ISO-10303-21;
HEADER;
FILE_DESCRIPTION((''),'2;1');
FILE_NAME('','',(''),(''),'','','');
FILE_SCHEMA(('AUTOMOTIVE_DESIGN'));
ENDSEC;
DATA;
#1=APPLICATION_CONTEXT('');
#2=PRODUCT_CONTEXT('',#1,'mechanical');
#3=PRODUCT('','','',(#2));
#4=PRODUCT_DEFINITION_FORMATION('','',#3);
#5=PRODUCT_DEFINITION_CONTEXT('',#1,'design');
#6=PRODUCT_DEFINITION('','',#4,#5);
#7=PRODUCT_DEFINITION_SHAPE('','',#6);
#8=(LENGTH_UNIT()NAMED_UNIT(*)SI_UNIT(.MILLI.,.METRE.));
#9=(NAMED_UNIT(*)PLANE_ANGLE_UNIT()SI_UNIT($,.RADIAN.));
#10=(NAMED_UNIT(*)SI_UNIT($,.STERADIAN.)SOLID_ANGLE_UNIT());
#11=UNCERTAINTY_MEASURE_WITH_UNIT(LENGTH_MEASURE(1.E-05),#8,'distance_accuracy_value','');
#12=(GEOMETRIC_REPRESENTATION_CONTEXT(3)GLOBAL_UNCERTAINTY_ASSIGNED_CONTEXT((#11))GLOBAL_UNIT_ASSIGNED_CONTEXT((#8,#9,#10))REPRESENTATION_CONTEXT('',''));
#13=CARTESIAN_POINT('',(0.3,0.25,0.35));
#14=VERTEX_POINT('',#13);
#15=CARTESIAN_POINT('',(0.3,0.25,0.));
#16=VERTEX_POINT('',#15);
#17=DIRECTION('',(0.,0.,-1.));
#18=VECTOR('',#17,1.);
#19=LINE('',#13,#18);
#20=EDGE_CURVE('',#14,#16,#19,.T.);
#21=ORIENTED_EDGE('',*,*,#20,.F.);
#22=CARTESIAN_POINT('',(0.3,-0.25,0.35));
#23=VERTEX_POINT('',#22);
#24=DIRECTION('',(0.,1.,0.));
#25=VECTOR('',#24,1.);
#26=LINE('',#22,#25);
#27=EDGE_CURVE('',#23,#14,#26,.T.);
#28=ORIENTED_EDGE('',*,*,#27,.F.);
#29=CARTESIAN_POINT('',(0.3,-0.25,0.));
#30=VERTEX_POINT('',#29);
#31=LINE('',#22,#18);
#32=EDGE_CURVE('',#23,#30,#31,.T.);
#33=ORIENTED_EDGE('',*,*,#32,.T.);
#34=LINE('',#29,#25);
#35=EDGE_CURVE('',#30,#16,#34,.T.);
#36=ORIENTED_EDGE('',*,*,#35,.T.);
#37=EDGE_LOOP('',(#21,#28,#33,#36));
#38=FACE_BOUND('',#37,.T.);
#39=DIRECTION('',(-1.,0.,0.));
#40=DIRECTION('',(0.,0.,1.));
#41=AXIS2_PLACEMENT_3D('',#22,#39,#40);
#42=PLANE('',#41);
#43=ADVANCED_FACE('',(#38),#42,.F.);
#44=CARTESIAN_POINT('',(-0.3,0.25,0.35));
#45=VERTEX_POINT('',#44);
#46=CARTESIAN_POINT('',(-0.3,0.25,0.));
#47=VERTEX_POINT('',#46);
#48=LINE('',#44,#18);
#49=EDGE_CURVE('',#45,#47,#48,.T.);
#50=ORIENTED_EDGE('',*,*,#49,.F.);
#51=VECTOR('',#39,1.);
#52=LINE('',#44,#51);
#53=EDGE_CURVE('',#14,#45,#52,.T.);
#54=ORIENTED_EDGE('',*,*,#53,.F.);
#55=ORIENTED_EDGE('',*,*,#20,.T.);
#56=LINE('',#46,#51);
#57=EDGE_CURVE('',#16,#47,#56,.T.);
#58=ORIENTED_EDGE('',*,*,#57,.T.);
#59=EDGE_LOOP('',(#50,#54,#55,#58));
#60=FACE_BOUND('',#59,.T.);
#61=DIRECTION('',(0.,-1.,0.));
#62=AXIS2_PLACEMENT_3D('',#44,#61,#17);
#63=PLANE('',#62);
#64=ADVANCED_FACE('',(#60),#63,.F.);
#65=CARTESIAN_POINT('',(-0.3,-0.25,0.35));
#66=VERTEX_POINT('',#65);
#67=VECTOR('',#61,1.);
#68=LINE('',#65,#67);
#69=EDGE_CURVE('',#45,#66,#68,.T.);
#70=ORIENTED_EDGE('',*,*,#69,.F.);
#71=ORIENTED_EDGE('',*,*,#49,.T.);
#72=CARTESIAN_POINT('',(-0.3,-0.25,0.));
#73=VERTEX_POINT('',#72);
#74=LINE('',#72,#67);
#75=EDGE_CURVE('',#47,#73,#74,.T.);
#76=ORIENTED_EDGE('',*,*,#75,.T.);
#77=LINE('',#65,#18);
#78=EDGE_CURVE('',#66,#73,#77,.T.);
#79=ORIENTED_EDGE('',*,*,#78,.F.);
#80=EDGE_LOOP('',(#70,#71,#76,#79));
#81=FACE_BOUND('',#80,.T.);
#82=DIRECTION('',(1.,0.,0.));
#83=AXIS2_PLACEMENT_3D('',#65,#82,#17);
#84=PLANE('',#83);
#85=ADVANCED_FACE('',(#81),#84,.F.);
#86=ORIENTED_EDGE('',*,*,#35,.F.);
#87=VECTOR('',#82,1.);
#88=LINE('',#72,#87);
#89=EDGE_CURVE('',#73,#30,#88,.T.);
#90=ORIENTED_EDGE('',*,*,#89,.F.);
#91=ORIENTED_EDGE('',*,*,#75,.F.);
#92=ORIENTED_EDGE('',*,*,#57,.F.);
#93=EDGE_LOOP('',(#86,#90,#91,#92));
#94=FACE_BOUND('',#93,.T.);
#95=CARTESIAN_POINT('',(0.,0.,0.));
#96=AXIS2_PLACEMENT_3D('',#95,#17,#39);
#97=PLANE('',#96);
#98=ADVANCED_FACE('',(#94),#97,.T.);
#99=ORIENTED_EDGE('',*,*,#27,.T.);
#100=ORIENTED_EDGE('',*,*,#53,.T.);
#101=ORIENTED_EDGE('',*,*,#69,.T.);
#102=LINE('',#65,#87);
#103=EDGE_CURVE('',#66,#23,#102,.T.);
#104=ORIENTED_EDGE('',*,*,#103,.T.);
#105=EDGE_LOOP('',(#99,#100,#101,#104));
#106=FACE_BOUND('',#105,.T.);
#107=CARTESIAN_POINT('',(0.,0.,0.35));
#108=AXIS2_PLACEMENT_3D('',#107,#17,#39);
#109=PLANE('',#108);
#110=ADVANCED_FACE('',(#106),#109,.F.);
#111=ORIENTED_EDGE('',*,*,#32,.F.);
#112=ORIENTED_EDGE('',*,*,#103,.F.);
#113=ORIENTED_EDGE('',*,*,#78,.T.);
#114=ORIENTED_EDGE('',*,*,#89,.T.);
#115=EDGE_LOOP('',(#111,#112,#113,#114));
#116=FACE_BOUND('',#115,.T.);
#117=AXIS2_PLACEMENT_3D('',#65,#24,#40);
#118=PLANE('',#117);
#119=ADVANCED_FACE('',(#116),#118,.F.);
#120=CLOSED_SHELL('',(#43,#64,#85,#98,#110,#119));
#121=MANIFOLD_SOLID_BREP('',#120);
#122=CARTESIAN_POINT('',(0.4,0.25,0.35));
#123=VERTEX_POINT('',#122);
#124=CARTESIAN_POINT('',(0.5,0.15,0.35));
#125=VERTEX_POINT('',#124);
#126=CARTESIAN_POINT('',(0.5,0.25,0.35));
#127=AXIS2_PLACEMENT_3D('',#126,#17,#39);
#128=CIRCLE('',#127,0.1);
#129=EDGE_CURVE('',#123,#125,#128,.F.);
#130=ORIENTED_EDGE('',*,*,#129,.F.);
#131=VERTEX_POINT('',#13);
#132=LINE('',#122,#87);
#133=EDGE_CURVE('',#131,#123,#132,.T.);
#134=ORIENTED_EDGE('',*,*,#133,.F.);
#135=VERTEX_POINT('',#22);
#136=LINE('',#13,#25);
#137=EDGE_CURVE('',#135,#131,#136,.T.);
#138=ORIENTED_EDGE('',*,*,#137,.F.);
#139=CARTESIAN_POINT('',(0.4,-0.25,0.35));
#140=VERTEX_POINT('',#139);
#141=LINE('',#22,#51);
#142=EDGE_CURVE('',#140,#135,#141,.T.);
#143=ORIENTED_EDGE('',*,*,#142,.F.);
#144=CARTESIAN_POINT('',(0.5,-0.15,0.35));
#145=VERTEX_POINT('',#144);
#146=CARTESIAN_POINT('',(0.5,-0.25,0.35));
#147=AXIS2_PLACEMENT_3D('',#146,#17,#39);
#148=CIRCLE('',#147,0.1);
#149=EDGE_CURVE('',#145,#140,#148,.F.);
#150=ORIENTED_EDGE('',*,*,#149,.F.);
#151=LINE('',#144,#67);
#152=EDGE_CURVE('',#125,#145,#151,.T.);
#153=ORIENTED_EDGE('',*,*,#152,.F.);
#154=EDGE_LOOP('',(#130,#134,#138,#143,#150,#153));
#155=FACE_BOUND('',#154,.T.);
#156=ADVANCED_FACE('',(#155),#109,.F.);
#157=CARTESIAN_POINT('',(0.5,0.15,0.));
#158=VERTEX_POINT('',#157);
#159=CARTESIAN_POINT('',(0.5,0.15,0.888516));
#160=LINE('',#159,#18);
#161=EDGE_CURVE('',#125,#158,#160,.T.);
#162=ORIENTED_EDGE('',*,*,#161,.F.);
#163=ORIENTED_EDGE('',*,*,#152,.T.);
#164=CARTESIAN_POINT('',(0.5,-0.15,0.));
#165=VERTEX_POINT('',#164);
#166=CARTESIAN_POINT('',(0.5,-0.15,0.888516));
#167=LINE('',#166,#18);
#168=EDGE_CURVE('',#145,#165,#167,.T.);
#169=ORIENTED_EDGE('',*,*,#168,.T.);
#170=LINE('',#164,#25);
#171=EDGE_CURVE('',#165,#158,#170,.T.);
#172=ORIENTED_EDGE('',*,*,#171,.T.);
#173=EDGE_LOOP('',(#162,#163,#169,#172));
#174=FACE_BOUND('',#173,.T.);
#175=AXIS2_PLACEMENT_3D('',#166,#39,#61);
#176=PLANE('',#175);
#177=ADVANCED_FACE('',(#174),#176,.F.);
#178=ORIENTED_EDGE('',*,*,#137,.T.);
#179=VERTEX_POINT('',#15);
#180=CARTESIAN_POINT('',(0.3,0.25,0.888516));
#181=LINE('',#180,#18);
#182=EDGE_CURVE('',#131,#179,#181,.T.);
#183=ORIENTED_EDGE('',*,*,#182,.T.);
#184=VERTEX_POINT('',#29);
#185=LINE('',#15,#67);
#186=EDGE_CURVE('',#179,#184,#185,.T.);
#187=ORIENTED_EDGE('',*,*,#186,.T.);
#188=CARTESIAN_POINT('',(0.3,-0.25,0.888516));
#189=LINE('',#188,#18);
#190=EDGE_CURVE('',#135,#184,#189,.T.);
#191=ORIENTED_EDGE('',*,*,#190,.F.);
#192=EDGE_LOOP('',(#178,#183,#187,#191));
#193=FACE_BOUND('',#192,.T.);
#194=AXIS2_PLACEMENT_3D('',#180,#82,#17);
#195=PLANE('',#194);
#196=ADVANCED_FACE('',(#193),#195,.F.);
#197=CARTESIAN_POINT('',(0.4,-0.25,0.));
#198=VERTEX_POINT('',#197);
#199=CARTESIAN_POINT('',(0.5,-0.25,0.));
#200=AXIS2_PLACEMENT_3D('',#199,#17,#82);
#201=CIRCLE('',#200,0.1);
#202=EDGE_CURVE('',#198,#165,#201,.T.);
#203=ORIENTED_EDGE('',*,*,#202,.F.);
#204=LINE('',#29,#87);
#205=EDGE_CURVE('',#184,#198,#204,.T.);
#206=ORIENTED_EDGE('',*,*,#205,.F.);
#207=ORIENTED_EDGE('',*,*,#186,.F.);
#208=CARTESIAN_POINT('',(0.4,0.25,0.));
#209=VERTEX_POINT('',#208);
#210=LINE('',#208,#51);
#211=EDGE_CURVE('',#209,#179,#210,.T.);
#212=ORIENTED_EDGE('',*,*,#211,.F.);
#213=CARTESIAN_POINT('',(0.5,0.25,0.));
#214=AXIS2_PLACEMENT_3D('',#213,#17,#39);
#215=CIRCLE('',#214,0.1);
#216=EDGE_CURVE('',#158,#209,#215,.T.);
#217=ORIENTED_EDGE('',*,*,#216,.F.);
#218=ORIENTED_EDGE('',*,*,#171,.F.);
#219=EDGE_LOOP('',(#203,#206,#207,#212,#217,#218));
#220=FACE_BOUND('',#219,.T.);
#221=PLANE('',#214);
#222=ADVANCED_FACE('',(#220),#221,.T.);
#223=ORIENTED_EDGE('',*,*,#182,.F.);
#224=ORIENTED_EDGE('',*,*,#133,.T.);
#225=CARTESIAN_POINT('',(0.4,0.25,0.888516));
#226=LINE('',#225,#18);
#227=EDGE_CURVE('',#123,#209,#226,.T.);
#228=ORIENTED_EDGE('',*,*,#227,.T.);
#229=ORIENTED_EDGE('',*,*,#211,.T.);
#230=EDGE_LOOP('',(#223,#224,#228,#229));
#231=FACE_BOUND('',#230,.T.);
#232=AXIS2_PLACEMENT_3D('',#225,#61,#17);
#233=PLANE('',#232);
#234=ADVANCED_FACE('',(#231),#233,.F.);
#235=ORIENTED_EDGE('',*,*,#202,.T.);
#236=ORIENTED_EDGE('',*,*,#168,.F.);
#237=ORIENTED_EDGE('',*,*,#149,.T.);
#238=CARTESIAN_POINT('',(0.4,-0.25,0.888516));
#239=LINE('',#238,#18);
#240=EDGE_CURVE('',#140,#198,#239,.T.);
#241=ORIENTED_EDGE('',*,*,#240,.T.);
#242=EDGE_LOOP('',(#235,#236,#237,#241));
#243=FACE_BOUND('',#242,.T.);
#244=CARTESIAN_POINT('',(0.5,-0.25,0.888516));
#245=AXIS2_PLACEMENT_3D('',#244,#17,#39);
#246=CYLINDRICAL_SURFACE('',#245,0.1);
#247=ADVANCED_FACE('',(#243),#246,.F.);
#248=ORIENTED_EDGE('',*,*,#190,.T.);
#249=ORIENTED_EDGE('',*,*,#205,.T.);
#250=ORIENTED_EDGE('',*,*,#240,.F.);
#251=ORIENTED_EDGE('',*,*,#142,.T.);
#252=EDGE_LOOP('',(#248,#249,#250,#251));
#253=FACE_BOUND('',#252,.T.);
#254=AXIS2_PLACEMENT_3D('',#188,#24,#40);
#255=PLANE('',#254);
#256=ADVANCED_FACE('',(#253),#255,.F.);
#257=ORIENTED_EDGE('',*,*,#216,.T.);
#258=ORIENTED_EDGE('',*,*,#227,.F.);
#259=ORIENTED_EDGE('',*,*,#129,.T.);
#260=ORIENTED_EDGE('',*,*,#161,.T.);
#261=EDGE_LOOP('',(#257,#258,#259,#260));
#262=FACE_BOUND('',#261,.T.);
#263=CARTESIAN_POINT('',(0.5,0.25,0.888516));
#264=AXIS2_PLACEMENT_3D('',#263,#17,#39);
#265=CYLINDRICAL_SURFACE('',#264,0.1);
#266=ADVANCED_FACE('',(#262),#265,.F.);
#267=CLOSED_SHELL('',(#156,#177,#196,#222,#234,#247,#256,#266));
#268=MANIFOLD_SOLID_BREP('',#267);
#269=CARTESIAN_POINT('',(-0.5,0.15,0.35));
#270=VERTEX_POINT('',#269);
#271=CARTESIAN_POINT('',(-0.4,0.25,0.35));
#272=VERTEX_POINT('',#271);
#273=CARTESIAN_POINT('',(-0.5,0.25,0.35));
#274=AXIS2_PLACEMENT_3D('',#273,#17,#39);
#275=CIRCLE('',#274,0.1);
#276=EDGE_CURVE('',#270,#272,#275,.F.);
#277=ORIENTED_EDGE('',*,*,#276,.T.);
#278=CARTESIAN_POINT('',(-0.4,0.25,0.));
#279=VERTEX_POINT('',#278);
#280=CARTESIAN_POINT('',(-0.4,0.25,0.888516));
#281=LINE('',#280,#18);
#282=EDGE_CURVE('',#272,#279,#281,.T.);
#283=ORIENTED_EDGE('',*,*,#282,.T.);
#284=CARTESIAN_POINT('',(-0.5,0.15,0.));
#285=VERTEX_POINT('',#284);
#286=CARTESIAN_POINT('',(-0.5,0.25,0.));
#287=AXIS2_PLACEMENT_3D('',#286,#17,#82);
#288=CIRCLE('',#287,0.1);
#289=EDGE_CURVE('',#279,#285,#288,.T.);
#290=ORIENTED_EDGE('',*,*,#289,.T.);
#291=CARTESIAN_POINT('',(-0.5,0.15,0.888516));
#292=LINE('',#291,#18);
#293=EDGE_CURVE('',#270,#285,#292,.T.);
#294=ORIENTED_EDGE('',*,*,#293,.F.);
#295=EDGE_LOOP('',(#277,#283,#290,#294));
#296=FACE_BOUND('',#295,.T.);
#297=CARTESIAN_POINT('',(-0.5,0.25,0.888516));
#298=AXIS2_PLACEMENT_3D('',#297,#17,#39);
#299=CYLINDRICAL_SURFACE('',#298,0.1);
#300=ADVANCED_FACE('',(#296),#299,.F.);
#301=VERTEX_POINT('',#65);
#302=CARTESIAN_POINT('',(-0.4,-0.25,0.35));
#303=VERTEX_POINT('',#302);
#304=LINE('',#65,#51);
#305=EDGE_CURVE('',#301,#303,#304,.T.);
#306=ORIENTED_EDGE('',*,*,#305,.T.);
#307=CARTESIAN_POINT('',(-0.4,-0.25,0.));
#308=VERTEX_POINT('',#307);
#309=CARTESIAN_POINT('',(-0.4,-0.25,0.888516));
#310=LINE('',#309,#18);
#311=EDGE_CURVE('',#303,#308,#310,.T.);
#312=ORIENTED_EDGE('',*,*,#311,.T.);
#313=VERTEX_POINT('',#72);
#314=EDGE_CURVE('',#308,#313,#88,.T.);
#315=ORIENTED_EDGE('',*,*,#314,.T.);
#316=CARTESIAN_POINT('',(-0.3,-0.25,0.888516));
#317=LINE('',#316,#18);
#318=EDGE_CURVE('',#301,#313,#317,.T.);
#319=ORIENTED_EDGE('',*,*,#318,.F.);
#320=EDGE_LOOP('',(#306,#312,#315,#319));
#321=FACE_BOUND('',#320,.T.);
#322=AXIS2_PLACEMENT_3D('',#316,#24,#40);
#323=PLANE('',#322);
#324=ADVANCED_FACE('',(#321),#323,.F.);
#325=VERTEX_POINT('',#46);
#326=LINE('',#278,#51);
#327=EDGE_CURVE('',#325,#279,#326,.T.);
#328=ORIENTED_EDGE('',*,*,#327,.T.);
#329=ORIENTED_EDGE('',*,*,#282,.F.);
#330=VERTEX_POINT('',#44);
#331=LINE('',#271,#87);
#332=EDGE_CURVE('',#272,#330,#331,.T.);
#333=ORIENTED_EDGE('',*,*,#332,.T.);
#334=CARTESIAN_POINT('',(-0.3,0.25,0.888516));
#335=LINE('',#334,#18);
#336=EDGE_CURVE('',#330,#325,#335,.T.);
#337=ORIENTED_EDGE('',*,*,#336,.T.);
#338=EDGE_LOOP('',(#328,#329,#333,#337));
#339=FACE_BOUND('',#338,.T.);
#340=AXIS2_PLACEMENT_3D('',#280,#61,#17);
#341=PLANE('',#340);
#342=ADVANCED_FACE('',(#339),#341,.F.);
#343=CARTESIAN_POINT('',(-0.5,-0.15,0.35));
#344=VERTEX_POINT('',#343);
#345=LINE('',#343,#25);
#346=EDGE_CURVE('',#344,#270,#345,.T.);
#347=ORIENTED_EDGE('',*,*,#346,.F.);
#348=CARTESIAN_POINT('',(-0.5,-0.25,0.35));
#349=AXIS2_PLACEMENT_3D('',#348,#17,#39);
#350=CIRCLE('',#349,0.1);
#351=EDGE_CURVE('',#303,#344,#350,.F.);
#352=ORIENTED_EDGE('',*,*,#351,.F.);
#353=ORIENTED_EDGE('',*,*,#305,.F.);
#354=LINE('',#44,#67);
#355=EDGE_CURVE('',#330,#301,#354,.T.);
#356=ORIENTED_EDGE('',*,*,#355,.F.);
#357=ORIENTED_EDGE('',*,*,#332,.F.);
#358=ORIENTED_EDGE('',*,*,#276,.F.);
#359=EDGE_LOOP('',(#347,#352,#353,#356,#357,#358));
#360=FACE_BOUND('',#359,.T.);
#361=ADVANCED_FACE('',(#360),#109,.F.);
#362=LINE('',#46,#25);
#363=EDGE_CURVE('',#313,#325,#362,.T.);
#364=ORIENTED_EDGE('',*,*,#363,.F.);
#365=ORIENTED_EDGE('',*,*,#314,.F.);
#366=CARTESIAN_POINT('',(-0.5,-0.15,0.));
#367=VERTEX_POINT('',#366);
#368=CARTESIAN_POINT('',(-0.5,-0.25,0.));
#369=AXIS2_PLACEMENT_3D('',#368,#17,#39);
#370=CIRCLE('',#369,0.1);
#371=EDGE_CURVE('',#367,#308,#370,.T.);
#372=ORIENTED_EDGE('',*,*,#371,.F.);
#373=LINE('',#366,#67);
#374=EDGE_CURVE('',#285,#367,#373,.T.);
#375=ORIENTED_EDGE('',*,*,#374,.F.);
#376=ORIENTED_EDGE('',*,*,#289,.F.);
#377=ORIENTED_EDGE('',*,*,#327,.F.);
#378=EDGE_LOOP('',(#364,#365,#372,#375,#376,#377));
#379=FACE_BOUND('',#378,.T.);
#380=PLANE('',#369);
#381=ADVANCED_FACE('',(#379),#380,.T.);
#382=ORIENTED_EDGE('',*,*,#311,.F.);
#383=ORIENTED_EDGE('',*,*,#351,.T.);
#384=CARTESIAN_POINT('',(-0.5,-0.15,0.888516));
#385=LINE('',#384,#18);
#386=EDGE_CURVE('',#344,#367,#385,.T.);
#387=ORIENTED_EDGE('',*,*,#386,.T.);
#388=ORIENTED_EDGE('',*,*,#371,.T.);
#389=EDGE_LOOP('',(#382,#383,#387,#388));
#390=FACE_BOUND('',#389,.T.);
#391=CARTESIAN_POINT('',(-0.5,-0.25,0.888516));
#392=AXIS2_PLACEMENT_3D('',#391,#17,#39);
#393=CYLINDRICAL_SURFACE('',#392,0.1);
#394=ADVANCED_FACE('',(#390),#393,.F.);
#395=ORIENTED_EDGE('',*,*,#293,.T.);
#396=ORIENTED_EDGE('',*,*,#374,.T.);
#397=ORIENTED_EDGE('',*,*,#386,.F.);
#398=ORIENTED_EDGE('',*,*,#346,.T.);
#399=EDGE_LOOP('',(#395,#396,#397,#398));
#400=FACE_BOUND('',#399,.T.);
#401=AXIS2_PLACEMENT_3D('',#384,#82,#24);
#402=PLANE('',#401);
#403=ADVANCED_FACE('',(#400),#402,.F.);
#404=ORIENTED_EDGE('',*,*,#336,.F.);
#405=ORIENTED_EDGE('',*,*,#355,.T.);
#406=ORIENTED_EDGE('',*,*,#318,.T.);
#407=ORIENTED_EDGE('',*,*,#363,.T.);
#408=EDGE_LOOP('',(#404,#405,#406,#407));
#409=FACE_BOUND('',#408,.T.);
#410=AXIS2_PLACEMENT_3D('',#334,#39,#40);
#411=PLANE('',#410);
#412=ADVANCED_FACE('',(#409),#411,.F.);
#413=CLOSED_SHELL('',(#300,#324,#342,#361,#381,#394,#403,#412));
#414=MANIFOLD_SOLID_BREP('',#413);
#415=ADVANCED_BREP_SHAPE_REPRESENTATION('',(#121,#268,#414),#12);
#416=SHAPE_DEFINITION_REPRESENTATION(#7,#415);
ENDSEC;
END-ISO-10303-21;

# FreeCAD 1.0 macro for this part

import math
import FreeCAD as App
import Part
import Sketcher

V = App.Vector


def add_polygon(sketch, points):
    """Adds a closed chain of lines whose ends are joined by coincident constraints."""
    first, n = sketch.GeometryCount, len(points)
    for a, b in zip(points, points[1:] + points[:1]):
        sketch.addGeometry(Part.LineSegment(App.Vector(*a, 0), App.Vector(*b, 0)), False)
    for i in range(n):
        sketch.addConstraint(Sketcher.Constraint("Coincident", first + i, 2, first + (i + 1) % n, 1))

doc = App.newDocument("Part")
body = doc.addObject("PartDesign::Body", "Body")

# Sketch on XY plane
sketch1 = body.newObject("Sketcher::SketchObject", "Sketch")
sketch1.AttachmentSupport = (doc.getObject("XY_Plane"), [""])
sketch1.MapMode = "FlatFace"
add_polygon(sketch1, [(-0.3, 0.25), (-0.3, -0.25), (0.3, -0.25), (0.3, 0.25)])  # lines 0-3
sketch1.addConstraint([
    Sketcher.Constraint("Vertical", 0),
    Sketcher.Constraint("Horizontal", 1),
    Sketcher.Constraint("Vertical", 2),
    Sketcher.Constraint("Horizontal", 3),
    Sketcher.Constraint("Symmetric", 0, 2, 2, 2, -1, 1),
    Sketcher.Constraint("DistanceX", 1, 1, 1, 2, 0.6),
    Sketcher.Constraint("DistanceY", 0, 2, 0, 1, 0.5),
])
pad1 = body.newObject("PartDesign::Pad", "Pad")
pad1.Profile = sketch1
pad1.Length = 0.35
body2 = doc.addObject("PartDesign::Body", "Body001")

# Sketch on XY plane
sketch2 = body2.newObject("Sketcher::SketchObject", "Sketch001")
sketch2.AttachmentSupport = (doc.getObject("XY_Plane001"), [""])
sketch2.MapMode = "FlatFace"
sketch2.addGeometry([
    Part.LineSegment(V(-0.4, -0.25, 0), V(-0.3, -0.25, 0)),  # 0
    Part.LineSegment(V(-0.3, -0.25, 0), V(-0.3, 0.25, 0)),  # 1
    Part.LineSegment(V(-0.3, 0.25, 0), V(-0.4, 0.25, 0)),  # 2
    Part.ArcOfCircle(Part.Circle(V(-0.5, 0.25, 0), V(0, 0, 1), 0.1), math.radians(-90), math.radians(0)),  # 3
    Part.LineSegment(V(-0.5, 0.15, 0), V(-0.5, -0.15, 0)),  # 4
    Part.ArcOfCircle(Part.Circle(V(-0.5, -0.25, 0), V(0, 0, 1), 0.1), math.radians(0), math.radians(90)),  # 5
], False)
sketch2.addConstraint([
    Sketcher.Constraint("Coincident", 0, 2, 1, 1),
    Sketcher.Constraint("Coincident", 1, 2, 2, 1),
    Sketcher.Constraint("Coincident", 2, 2, 3, 2),
    Sketcher.Constraint("Coincident", 3, 1, 4, 1),
    Sketcher.Constraint("Coincident", 4, 2, 5, 2),
    Sketcher.Constraint("Coincident", 5, 1, 0, 1),
    Sketcher.Constraint("Horizontal", 0),
    Sketcher.Constraint("Vertical", 1),
    Sketcher.Constraint("Horizontal", 2),
    Sketcher.Constraint("Vertical", 4),
    Sketcher.Constraint("Equal", 3, 5),
    Sketcher.Constraint("Symmetric", 3, 3, 5, 3, -1),
    Sketcher.Constraint("Horizontal", 5, 3, 0, 2),
    Sketcher.Constraint("Horizontal", 3, 3, 1, 2),
    Sketcher.Constraint("Vertical", 5, 3, 3, 1),
    Sketcher.Constraint("Radius", 3, 0.1),
    Sketcher.Constraint("DistanceX", 0, 1, 0, 2, 0.1),
    Sketcher.Constraint("DistanceY", 1, 1, 1, 2, 0.5),
    Sketcher.Constraint("DistanceX", 3, 3, -1, 1, 0.5),
])
pad2 = body2.newObject("PartDesign::Pad", "Pad001")
pad2.Profile = sketch2
pad2.Length = 0.35
body3 = doc.addObject("PartDesign::Body", "Body002")

# Sketch on XY plane
sketch3 = body3.newObject("Sketcher::SketchObject", "Sketch002")
sketch3.AttachmentSupport = (doc.getObject("XY_Plane002"), [""])
sketch3.MapMode = "FlatFace"
sketch3.addGeometry([
    Part.LineSegment(V(0.3, 0.25, 0), V(0.3, -0.25, 0)),  # 0
    Part.LineSegment(V(0.3, -0.25, 0), V(0.4, -0.25, 0)),  # 1
    Part.ArcOfCircle(Part.Circle(V(0.5, -0.25, 0), V(0, 0, 1), 0.1), math.radians(90), math.radians(180)),  # 2
    Part.LineSegment(V(0.5, -0.15, 0), V(0.5, 0.15, 0)),  # 3
    Part.ArcOfCircle(Part.Circle(V(0.5, 0.25, 0), V(0, 0, 1), 0.1), math.radians(180), math.radians(270)),  # 4
    Part.LineSegment(V(0.4, 0.25, 0), V(0.3, 0.25, 0)),  # 5
], False)
sketch3.addConstraint([
    Sketcher.Constraint("Coincident", 0, 2, 1, 1),
    Sketcher.Constraint("Coincident", 1, 2, 2, 2),
    Sketcher.Constraint("Coincident", 2, 1, 3, 1),
    Sketcher.Constraint("Coincident", 3, 2, 4, 2),
    Sketcher.Constraint("Coincident", 4, 1, 5, 1),
    Sketcher.Constraint("Coincident", 5, 2, 0, 1),
    Sketcher.Constraint("Vertical", 0),
    Sketcher.Constraint("Horizontal", 1),
    Sketcher.Constraint("Vertical", 3),
    Sketcher.Constraint("Horizontal", 5),
    Sketcher.Constraint("Equal", 2, 4),
    Sketcher.Constraint("Symmetric", 2, 3, 4, 3, -1),
    Sketcher.Constraint("Horizontal", 2, 3, 0, 2),
    Sketcher.Constraint("Vertical", 4, 3, 2, 1),
    Sketcher.Constraint("Radius", 2, 0.1),
    Sketcher.Constraint("DistanceX", 1, 1, 1, 2, 0.1),
    Sketcher.Constraint("DistanceY", 0, 2, 0, 1, 0.5),
    Sketcher.Constraint("DistanceY", 3, 1, 3, 2, 0.3),
    Sketcher.Constraint("DistanceX", -1, 1, 2, 3, 0.5),
])
pad3 = body3.newObject("PartDesign::Pad", "Pad002")
pad3.Profile = sketch3
pad3.Length = 0.35

doc.recompute()
